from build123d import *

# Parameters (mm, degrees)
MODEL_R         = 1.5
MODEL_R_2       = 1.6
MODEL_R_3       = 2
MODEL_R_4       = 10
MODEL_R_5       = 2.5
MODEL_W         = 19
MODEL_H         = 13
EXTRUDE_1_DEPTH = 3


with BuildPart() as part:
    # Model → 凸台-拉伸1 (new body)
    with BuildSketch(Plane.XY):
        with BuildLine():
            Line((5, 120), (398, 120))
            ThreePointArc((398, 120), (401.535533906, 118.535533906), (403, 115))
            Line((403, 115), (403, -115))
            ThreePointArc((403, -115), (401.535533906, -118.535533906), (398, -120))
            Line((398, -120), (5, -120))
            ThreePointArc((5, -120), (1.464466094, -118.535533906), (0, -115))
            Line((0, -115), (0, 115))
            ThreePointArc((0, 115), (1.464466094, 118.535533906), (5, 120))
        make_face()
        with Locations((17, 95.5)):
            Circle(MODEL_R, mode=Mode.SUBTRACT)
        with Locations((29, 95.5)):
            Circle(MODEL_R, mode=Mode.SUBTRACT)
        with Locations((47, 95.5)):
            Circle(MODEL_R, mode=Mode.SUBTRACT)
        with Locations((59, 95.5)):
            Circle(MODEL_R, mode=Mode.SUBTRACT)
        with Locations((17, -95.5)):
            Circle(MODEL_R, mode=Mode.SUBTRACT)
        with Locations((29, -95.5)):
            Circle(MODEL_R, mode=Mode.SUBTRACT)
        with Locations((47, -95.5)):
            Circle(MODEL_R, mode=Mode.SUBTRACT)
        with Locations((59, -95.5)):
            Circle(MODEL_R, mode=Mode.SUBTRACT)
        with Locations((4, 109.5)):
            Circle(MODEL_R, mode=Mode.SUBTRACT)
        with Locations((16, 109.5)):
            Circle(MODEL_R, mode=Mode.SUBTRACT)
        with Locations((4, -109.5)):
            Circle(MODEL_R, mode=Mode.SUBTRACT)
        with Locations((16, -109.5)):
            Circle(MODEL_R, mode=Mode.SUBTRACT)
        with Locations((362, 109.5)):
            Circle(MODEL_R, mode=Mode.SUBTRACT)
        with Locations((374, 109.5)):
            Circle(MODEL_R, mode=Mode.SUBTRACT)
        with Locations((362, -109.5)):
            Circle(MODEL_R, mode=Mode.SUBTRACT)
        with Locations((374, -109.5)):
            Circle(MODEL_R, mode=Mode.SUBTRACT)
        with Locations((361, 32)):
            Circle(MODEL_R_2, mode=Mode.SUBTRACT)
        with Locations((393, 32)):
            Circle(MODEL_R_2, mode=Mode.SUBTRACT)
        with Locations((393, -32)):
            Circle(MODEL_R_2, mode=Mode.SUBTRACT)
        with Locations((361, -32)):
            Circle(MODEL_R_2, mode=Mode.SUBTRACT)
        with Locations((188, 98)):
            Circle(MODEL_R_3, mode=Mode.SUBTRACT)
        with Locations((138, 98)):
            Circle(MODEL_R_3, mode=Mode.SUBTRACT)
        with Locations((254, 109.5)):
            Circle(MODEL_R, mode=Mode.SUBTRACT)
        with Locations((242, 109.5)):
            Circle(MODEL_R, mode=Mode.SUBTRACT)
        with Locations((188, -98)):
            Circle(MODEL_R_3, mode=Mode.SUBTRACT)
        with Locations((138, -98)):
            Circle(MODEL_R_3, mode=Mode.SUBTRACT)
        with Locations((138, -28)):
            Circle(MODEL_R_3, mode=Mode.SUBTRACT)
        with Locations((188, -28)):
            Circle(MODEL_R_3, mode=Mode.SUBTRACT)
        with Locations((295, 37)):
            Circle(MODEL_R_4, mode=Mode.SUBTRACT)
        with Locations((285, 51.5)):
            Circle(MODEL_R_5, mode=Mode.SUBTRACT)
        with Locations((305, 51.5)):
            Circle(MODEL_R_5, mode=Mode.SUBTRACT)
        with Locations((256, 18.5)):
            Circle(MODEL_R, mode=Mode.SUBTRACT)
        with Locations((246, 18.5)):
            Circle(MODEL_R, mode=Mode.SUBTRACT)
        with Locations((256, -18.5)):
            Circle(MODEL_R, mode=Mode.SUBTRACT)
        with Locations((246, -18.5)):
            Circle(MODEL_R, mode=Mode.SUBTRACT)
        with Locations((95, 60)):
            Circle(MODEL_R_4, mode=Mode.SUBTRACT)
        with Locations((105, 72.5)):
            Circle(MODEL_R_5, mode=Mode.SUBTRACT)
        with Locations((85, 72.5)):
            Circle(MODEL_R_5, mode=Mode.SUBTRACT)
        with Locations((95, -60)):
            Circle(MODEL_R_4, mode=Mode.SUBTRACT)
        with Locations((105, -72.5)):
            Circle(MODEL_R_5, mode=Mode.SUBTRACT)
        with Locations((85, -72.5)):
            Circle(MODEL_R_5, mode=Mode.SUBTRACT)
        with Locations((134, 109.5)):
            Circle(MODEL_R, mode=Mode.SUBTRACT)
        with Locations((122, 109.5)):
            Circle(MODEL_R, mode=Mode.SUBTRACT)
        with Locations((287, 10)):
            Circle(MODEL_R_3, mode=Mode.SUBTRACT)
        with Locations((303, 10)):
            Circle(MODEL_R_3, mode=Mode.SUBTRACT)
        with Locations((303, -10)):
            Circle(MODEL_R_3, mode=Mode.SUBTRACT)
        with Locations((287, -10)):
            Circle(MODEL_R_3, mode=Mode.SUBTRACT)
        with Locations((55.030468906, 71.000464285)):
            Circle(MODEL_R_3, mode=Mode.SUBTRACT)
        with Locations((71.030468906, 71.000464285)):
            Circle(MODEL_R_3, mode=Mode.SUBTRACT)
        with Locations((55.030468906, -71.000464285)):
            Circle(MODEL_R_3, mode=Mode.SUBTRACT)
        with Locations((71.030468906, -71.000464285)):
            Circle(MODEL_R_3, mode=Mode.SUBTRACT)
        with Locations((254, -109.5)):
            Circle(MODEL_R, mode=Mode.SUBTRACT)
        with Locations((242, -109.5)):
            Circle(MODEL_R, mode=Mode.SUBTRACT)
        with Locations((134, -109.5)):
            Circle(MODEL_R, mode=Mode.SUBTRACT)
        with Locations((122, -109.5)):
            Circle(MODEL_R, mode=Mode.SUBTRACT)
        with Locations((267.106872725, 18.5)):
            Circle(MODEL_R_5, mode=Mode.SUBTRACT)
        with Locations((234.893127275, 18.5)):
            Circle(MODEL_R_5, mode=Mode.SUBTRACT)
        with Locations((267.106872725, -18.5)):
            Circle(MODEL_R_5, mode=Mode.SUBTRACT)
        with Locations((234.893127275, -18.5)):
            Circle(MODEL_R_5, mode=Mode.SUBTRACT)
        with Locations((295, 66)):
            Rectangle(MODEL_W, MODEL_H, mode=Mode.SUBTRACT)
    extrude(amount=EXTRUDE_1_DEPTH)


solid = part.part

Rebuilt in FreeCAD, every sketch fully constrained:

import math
import FreeCAD as App
import Part
import Sketcher
from FreeCAD import Vector


def add_polygon(sketch, points):
    """Adds a closed chain of lines whose ends are joined by coincident constraints."""
    first, n = sketch.GeometryCount, len(points)
    for a, b in zip(points, points[1:] + points[:1]):
        sketch.addGeometry(Part.LineSegment(App.Vector(*a, 0), App.Vector(*b, 0)), False)
    for i in range(n):
        sketch.addConstraint(Sketcher.Constraint("Coincident", first + i, 2, first + (i + 1) % n, 1))

doc = App.newDocument("Part")
body = doc.addObject("PartDesign::Body", "Body")

# Sketch on XY plane
sketch1 = body.newObject("Sketcher::SketchObject", "Sketch")
sketch1.AttachmentSupport = (doc.getObject("XY_Plane"), [""])
sketch1.MapMode = "FlatFace"
sketch1.addGeometry(Part.LineSegment(Vector(398, 120, 0), Vector(5, 120, 0)), False)  # 0
sketch1.addGeometry(Part.ArcOfCircle(Part.Circle(Vector(5, 115, 0), Vector(0, 0, 1), 5), math.radians(90), math.radians(180)), False)  # 1
sketch1.addGeometry(Part.LineSegment(Vector(0, 115, 0), Vector(0, -115, 0)), False)  # 2
sketch1.addGeometry(Part.ArcOfCircle(Part.Circle(Vector(5, -115, 0), Vector(0, 0, 1), 5), math.radians(180), math.radians(270)), False)  # 3
sketch1.addGeometry(Part.LineSegment(Vector(5, -120, 0), Vector(398, -120, 0)), False)  # 4
sketch1.addGeometry(Part.ArcOfCircle(Part.Circle(Vector(398, -115, 0), Vector(0, 0, 1), 5), math.radians(-90), math.radians(0)), False)  # 5
sketch1.addGeometry(Part.LineSegment(Vector(403, -115, 0), Vector(403, 115, 0)), False)  # 6
sketch1.addGeometry(Part.ArcOfCircle(Part.Circle(Vector(398, 115, 0), Vector(0, 0, 1), 5), math.radians(0), math.radians(90)), False)  # 7
sketch1.addGeometry(Part.Circle(Vector(374, -109.5, 0), Vector(0, 0, 1), 1.5), False)  # 8
sketch1.addGeometry(Part.Circle(Vector(362, -109.5, 0), Vector(0, 0, 1), 1.5), False)  # 9
sketch1.addGeometry(Part.Circle(Vector(254, -109.5, 0), Vector(0, 0, 1), 1.5), False)  # 10
sketch1.addGeometry(Part.Circle(Vector(242, -109.5, 0), Vector(0, 0, 1), 1.5), False)  # 11
sketch1.addGeometry(Part.Circle(Vector(393, -32, 0), Vector(0, 0, 1), 1.6), False)  # 12
sketch1.addGeometry(Part.Circle(Vector(361, -32, 0), Vector(0, 0, 1), 1.6), False)  # 13
sketch1.addGeometry(Part.Circle(Vector(303, -10, 0), Vector(0, 0, 1), 2), False)  # 14
sketch1.addGeometry(Part.Circle(Vector(267.1, -18.5, 0), Vector(0, 0, 1), 2.5), False)  # 15
sketch1.addGeometry(Part.Circle(Vector(256, -18.5, 0), Vector(0, 0, 1), 1.5), False)  # 16
sketch1.addGeometry(Part.Circle(Vector(287, -10, 0), Vector(0, 0, 1), 2), False)  # 17
sketch1.addGeometry(Part.Circle(Vector(246, -18.5, 0), Vector(0, 0, 1), 1.5), False)  # 18
sketch1.addGeometry(Part.Circle(Vector(234.9, -18.5, 0), Vector(0, 0, 1), 2.5), False)  # 19
sketch1.addGeometry(Part.Circle(Vector(188, -98, 0), Vector(0, 0, 1), 2), False)  # 20
sketch1.addGeometry(Part.Circle(Vector(134, -109.5, 0), Vector(0, 0, 1), 1.5), False)  # 21
sketch1.addGeometry(Part.Circle(Vector(138, -98, 0), Vector(0, 0, 1), 2), False)  # 22
sketch1.addGeometry(Part.Circle(Vector(122, -109.5, 0), Vector(0, 0, 1), 1.5), False)  # 23
sketch1.addGeometry(Part.Circle(Vector(105, -72.5, 0), Vector(0, 0, 1), 2.5), False)  # 24
sketch1.addGeometry(Part.Circle(Vector(59, -95.5, 0), Vector(0, 0, 1), 1.5), False)  # 25
sketch1.addGeometry(Part.Circle(Vector(16, -109.5, 0), Vector(0, 0, 1), 1.5), False)  # 26
sketch1.addGeometry(Part.Circle(Vector(4, -109.5, 0), Vector(0, 0, 1), 1.5), False)  # 27
sketch1.addGeometry(Part.Circle(Vector(47, -95.5, 0), Vector(0, 0, 1), 1.5), False)  # 28
sketch1.addGeometry(Part.Circle(Vector(29, -95.5, 0), Vector(0, 0, 1), 1.5), False)  # 29
sketch1.addGeometry(Part.Circle(Vector(17, -95.5, 0), Vector(0, 0, 1), 1.5), False)  # 30
sketch1.addGeometry(Part.Circle(Vector(85, -72.5, 0), Vector(0, 0, 1), 2.5), False)  # 31
sketch1.addGeometry(Part.Circle(Vector(71, -71, 0), Vector(0, 0, 1), 2), False)  # 32
sketch1.addGeometry(Part.Circle(Vector(55, -71, 0), Vector(0, 0, 1), 2), False)  # 33
sketch1.addGeometry(Part.Circle(Vector(95, -60, 0), Vector(0, 0, 1), 10), False)  # 34
sketch1.addGeometry(Part.Circle(Vector(188, -28, 0), Vector(0, 0, 1), 2), False)  # 35
sketch1.addGeometry(Part.Circle(Vector(138, -28, 0), Vector(0, 0, 1), 2), False)  # 36
sketch1.addGeometry(Part.Circle(Vector(303, 10, 0), Vector(0, 0, 1), 2), False)  # 37
sketch1.addGeometry(Part.Circle(Vector(393, 32, 0), Vector(0, 0, 1), 1.6), False)  # 38
sketch1.addGeometry(Part.Circle(Vector(361, 32, 0), Vector(0, 0, 1), 1.6), False)  # 39
sketch1.addGeometry(Part.Circle(Vector(305, 51.5, 0), Vector(0, 0, 1), 2.5), False)  # 40
sketch1.addGeometry(Part.Circle(Vector(287, 10, 0), Vector(0, 0, 1), 2), False)  # 41
sketch1.addGeometry(Part.Circle(Vector(267.1, 18.5, 0), Vector(0, 0, 1), 2.5), False)  # 42
sketch1.addGeometry(Part.Circle(Vector(256, 18.5, 0), Vector(0, 0, 1), 1.5), False)  # 43
sketch1.addGeometry(Part.Circle(Vector(246, 18.5, 0), Vector(0, 0, 1), 1.5), False)  # 44
sketch1.addGeometry(Part.Circle(Vector(234.9, 18.5, 0), Vector(0, 0, 1), 2.5), False)  # 45
sketch1.addGeometry(Part.Circle(Vector(295, 37, 0), Vector(0, 0, 1), 10), False)  # 46
sketch1.addGeometry(Part.Circle(Vector(285, 51.5, 0), Vector(0, 0, 1), 2.5), False)  # 47
sketch1.addGeometry(Part.Circle(Vector(374, 109.5, 0), Vector(0, 0, 1), 1.5), False)  # 48
sketch1.addGeometry(Part.Circle(Vector(362, 109.5, 0), Vector(0, 0, 1), 1.5), False)  # 49
add_polygon(sketch1, [(285.5, 59.5), (285.5, 72.5), (304.5, 72.5), (304.5, 59.5)])  # lines 50-53
sketch1.addGeometry(Part.Circle(Vector(254, 109.5, 0), Vector(0, 0, 1), 1.5), False)  # 54
sketch1.addGeometry(Part.Circle(Vector(242, 109.5, 0), Vector(0, 0, 1), 1.5), False)  # 55
sketch1.addGeometry(Part.Circle(Vector(105, 72.5, 0), Vector(0, 0, 1), 2.5), False)  # 56
sketch1.addGeometry(Part.Circle(Vector(188, 98, 0), Vector(0, 0, 1), 2), False)  # 57
sketch1.addGeometry(Part.Circle(Vector(138, 98, 0), Vector(0, 0, 1), 2), False)  # 58
sketch1.addGeometry(Part.Circle(Vector(134, 109.5, 0), Vector(0, 0, 1), 1.5), False)  # 59
sketch1.addGeometry(Part.Circle(Vector(122, 109.5, 0), Vector(0, 0, 1), 1.5), False)  # 60
sketch1.addGeometry(Part.Circle(Vector(95, 60, 0), Vector(0, 0, 1), 10), False)  # 61
sketch1.addGeometry(Part.Circle(Vector(85, 72.5, 0), Vector(0, 0, 1), 2.5), False)  # 62
sketch1.addGeometry(Part.Circle(Vector(71, 71, 0), Vector(0, 0, 1), 2), False)  # 63
sketch1.addGeometry(Part.Circle(Vector(55, 71, 0), Vector(0, 0, 1), 2), False)  # 64
sketch1.addGeometry(Part.Circle(Vector(59, 95.5, 0), Vector(0, 0, 1), 1.5), False)  # 65
sketch1.addGeometry(Part.Circle(Vector(47, 95.5, 0), Vector(0, 0, 1), 1.5), False)  # 66
sketch1.addGeometry(Part.Circle(Vector(29, 95.5, 0), Vector(0, 0, 1), 1.5), False)  # 67
sketch1.addGeometry(Part.Circle(Vector(17, 95.5, 0), Vector(0, 0, 1), 1.5), False)  # 68
sketch1.addGeometry(Part.Circle(Vector(16, 109.5, 0), Vector(0, 0, 1), 1.5), False)  # 69
sketch1.addGeometry(Part.Circle(Vector(4, 109.5, 0), Vector(0, 0, 1), 1.5), False)  # 70
sketch1.addConstraint([
    Sketcher.Constraint("Tangent", 0, 2, 1, 1),
    Sketcher.Constraint("Tangent", 1, 2, 2, 1),
    Sketcher.Constraint("Tangent", 2, 2, 3, 1),
    Sketcher.Constraint("Tangent", 3, 2, 4, 1),
    Sketcher.Constraint("Tangent", 4, 2, 5, 1),
    Sketcher.Constraint("Tangent", 5, 2, 6, 1),
    Sketcher.Constraint("Tangent", 6, 2, 7, 1),
    Sketcher.Constraint("Tangent", 7, 2, 0, 1),
    Sketcher.Constraint("Horizontal", 0),
    Sketcher.Constraint("Vertical", 2),
    Sketcher.Constraint("Horizontal", 4),
    Sketcher.Constraint("Vertical", 6),
    Sketcher.Constraint("Vertical", 50),
    Sketcher.Constraint("Horizontal", 51),
    Sketcher.Constraint("Vertical", 52),
    Sketcher.Constraint("Horizontal", 53),
    Sketcher.Constraint("Equal", 1, 3),
    Sketcher.Constraint("Equal", 3, 5),
    Sketcher.Constraint("Equal", 5, 7),
    Sketcher.Constraint("Equal", 8, 9),
    Sketcher.Constraint("Equal", 9, 10),
    Sketcher.Constraint("Equal", 10, 11),
    Sketcher.Constraint("Equal", 12, 13),
    Sketcher.Constraint("Equal", 11, 16),
    Sketcher.Constraint("Equal", 14, 17),
    Sketcher.Constraint("Equal", 16, 18),
    Sketcher.Constraint("Equal", 15, 19),
    Sketcher.Constraint("Equal", 17, 20),
    Sketcher.Constraint("Equal", 18, 21),
    Sketcher.Constraint("Equal", 20, 22),
    Sketcher.Constraint("Equal", 21, 23),
    Sketcher.Constraint("Equal", 19, 24),
    Sketcher.Constraint("Equal", 23, 25),
    Sketcher.Constraint("Equal", 25, 26),
    Sketcher.Constraint("Equal", 26, 27),
    Sketcher.Constraint("Equal", 27, 28),
    Sketcher.Constraint("Equal", 28, 29),
    Sketcher.Constraint("Equal", 29, 30),
    Sketcher.Constraint("Equal", 24, 31),
    Sketcher.Constraint("Equal", 22, 32),
    Sketcher.Constraint("Equal", 32, 33),
    Sketcher.Constraint("Equal", 33, 35),
    Sketcher.Constraint("Equal", 35, 36),
    Sketcher.Constraint("Equal", 36, 37),
    Sketcher.Constraint("Equal", 13, 38),
    Sketcher.Constraint("Equal", 38, 39),
    Sketcher.Constraint("Equal", 31, 40),
    Sketcher.Constraint("Equal", 37, 41),
    Sketcher.Constraint("Equal", 40, 42),
    Sketcher.Constraint("Equal", 30, 43),
    Sketcher.Constraint("Equal", 43, 44),
    Sketcher.Constraint("Equal", 42, 45),
    Sketcher.Constraint("Equal", 34, 46),
    Sketcher.Constraint("Equal", 45, 47),
    Sketcher.Constraint("Equal", 44, 48),
    Sketcher.Constraint("Equal", 48, 49),
    Sketcher.Constraint("Equal", 49, 54),
    Sketcher.Constraint("Equal", 54, 55),
    Sketcher.Constraint("Equal", 47, 56),
    Sketcher.Constraint("Equal", 41, 57),
    Sketcher.Constraint("Equal", 57, 58),
    Sketcher.Constraint("Equal", 55, 59),
    Sketcher.Constraint("Equal", 59, 60),
    Sketcher.Constraint("Equal", 46, 61),
    Sketcher.Constraint("Equal", 56, 62),
    Sketcher.Constraint("Equal", 58, 63),
    Sketcher.Constraint("Equal", 63, 64),
    Sketcher.Constraint("Equal", 60, 65),
    Sketcher.Constraint("Equal", 65, 66),
    Sketcher.Constraint("Equal", 66, 67),
    Sketcher.Constraint("Equal", 67, 68),
    Sketcher.Constraint("Equal", 68, 69),
    Sketcher.Constraint("Equal", 69, 70),
    Sketcher.Constraint("Symmetric", 1, 2, 2, 2, -1, 1),
    Sketcher.Constraint("Symmetric", 14, 3, 37, 3, -1),
    Sketcher.Constraint("Symmetric", 12, 3, 38, 3, -1),
    Sketcher.Constraint("Symmetric", 13, 3, 39, 3, -1),
    Sketcher.Constraint("Symmetric", 17, 3, 41, 3, -1),
    Sketcher.Constraint("Symmetric", 15, 3, 42, 3, -1),
    Sketcher.Constraint("Symmetric", 16, 3, 43, 3, -1),
    Sketcher.Constraint("Symmetric", 18, 3, 44, 3, -1),
    Sketcher.Constraint("Symmetric", 19, 3, 45, 3, -1),
    Sketcher.Constraint("Symmetric", 8, 3, 48, 3, -1),
    Sketcher.Constraint("Symmetric", 9, 3, 49, 3, -1),
    Sketcher.Constraint("Symmetric", 10, 3, 54, 3, -1),
    Sketcher.Constraint("Symmetric", 11, 3, 55, 3, -1),
    Sketcher.Constraint("Symmetric", 24, 3, 56, 3, -1),
    Sketcher.Constraint("Symmetric", 20, 3, 57, 3, -1),
    Sketcher.Constraint("Symmetric", 22, 3, 58, 3, -1),
    Sketcher.Constraint("Symmetric", 21, 3, 59, 3, -1),
    Sketcher.Constraint("Symmetric", 23, 3, 60, 3, -1),
    Sketcher.Constraint("Symmetric", 34, 3, 61, 3, -1),
    Sketcher.Constraint("Symmetric", 31, 3, 62, 3, -1),
    Sketcher.Constraint("Symmetric", 32, 3, 63, 3, -1),
    Sketcher.Constraint("Symmetric", 33, 3, 64, 3, -1),
    Sketcher.Constraint("Symmetric", 25, 3, 65, 3, -1),
    Sketcher.Constraint("Symmetric", 28, 3, 66, 3, -1),
    Sketcher.Constraint("Symmetric", 29, 3, 67, 3, -1),
    Sketcher.Constraint("Symmetric", 30, 3, 68, 3, -1),
    Sketcher.Constraint("Symmetric", 26, 3, 69, 3, -1),
    Sketcher.Constraint("Symmetric", 27, 3, 70, 3, -1),
    Sketcher.Constraint("Horizontal", 8, 3, 9, 3),
    Sketcher.Constraint("Horizontal", 9, 3, 10, 3),
    Sketcher.Constraint("Horizontal", 10, 3, 11, 3),
    Sketcher.Constraint("Horizontal", 12, 3, 13, 3),
    Sketcher.Constraint("Horizontal", 15, 3, 16, 3),
    Sketcher.Constraint("Horizontal", 14, 3, 17, 3),
    Sketcher.Constraint("Horizontal", 16, 3, 18, 3),
    Sketcher.Constraint("Horizontal", 18, 3, 19, 3),
    Sketcher.Constraint("Horizontal", 11, 3, 21, 3),
    Sketcher.Constraint("Horizontal", 20, 3, 22, 3),
    Sketcher.Constraint("Horizontal", 21, 3, 23, 3),
    Sketcher.Constraint("Horizontal", 23, 3, 26, 3),
    Sketcher.Constraint("Horizontal", 26, 3, 27, 3),
    Sketcher.Constraint("Horizontal", 25, 3, 28, 3),
    Sketcher.Constraint("Horizontal", 28, 3, 29, 3),
    Sketcher.Constraint("Horizontal", 29, 3, 30, 3),
    Sketcher.Constraint("Horizontal", 24, 3, 31, 3),
    Sketcher.Constraint("Horizontal", 32, 3, 33, 3),
    Sketcher.Constraint("Horizontal", 35, 3, 36, 3),
    Sketcher.Constraint("Horizontal", 40, 3, 47, 3),
    Sketcher.Constraint("Horizontal", 62, 3, 50, 2),
    Sketcher.Constraint("Vertical", 20, 3, 35, 3),
    Sketcher.Constraint("Vertical", 22, 3, 36, 3),
    Sketcher.Constraint("Diameter", 8, 3.0),
    Sketcher.Constraint("Diameter", 14, 4.0),
    Sketcher.Constraint("Diameter", 15, 5.0),
    Sketcher.Constraint("Diameter", 34, 20.0),
    Sketcher.Constraint("Radius", 1, 5.0),
    Sketcher.Constraint("Diameter", 12, 3.2),
    Sketcher.Constraint("DistanceX", 0, 2, 0, 1, 393.0),
    Sketcher.Constraint("DistanceX", 51, 1, 51, 2, 19.0),
    Sketcher.Constraint("DistanceY", 2, 2, 2, 1, 230.0),
    Sketcher.Constraint("DistanceY", 50, 1, 50, 2, 13.0),
    Sketcher.Constraint("DistanceX", -1, 1, 8, 3, 374.0),
    Sketcher.Constraint("DistanceX", -1, 1, 9, 3, 362.0),
    Sketcher.Constraint("DistanceX", -1, 1, 10, 3, 254.0),
    Sketcher.Constraint("DistanceX", -1, 1, 11, 3, 242.0),
    Sketcher.Constraint("DistanceX", -1, 1, 12, 3, 393.0),
    Sketcher.Constraint("DistanceY", 12, 3, -1, 1, 32.0),
    Sketcher.Constraint("DistanceX", -1, 1, 13, 3, 361.0),
    Sketcher.Constraint("DistanceX", -1, 1, 14, 3, 303.0),
    Sketcher.Constraint("DistanceY", 14, 3, -1, 1, 10.0),
    Sketcher.Constraint("DistanceX", -1, 1, 16, 3, 256.0),
    Sketcher.Constraint("DistanceX", -1, 1, 17, 3, 287.0),
    Sketcher.Constraint("DistanceX", -1, 1, 18, 3, 246.0),
    Sketcher.Constraint("DistanceX", -1, 1, 20, 3, 188.0),
    Sketcher.Constraint("DistanceY", 20, 3, -1, 1, 98.0),
    Sketcher.Constraint("DistanceX", -1, 1, 21, 3, 134.0),
    Sketcher.Constraint("DistanceX", -1, 1, 22, 3, 138.0),
    Sketcher.Constraint("DistanceX", -1, 1, 23, 3, 122.0),
    Sketcher.Constraint("DistanceX", -1, 1, 24, 3, 105.0),
    Sketcher.Constraint("DistanceX", -1, 1, 25, 3, 59.0),
    Sketcher.Constraint("DistanceX", -1, 1, 26, 3, 16.0),
    Sketcher.Constraint("DistanceX", -1, 1, 27, 3, 4.0),
    Sketcher.Constraint("DistanceX", -1, 1, 28, 3, 47.0),
    Sketcher.Constraint("DistanceX", -1, 1, 29, 3, 29.0),
    Sketcher.Constraint("DistanceX", -1, 1, 30, 3, 17.0),
    Sketcher.Constraint("DistanceX", -1, 1, 31, 3, 85.0),
    Sketcher.Constraint("DistanceX", -1, 1, 34, 3, 95.0),
    Sketcher.Constraint("DistanceY", 34, 3, -1, 1, 60.0),
    Sketcher.Constraint("DistanceY", 35, 3, -1, 1, 28.0),
    Sketcher.Constraint("DistanceX", -1, 1, 40, 3, 305.0),
    Sketcher.Constraint("DistanceX", -1, 1, 46, 3, 295.0),
    Sketcher.Constraint("DistanceY", -1, 1, 46, 3, 37.0),
    Sketcher.Constraint("DistanceX", -1, 1, 47, 3, 285.0),
    Sketcher.Constraint("DistanceY", 8, 3, -1, 1, 109.5),
    Sketcher.Constraint("DistanceY", 15, 3, -1, 1, 18.5),
    Sketcher.Constraint("DistanceY", 24, 3, -1, 1, 72.5),
    Sketcher.Constraint("DistanceY", 25, 3, -1, 1, 95.5),
    Sketcher.Constraint("DistanceY", -1, 1, 40, 3, 51.5),
    Sketcher.Constraint("DistanceX", -1, 1, 50, 2, 285.5),
    Sketcher.Constraint("DistanceX", -1, 1, 32, 3, 71.030469),
    Sketcher.Constraint("DistanceX", -1, 1, 33, 3, 55.030469),
    Sketcher.Constraint("DistanceX", -1, 1, 15, 3, 267.106873),
    Sketcher.Constraint("DistanceX", -1, 1, 19, 3, 234.893127),
    Sketcher.Constraint("DistanceY", 32, 3, -1, 1, 71.000464),
])
pad1 = body.newObject("PartDesign::Pad", "Pad")
pad1.Profile = sketch1
pad1.Length = 3

doc.recompute()
